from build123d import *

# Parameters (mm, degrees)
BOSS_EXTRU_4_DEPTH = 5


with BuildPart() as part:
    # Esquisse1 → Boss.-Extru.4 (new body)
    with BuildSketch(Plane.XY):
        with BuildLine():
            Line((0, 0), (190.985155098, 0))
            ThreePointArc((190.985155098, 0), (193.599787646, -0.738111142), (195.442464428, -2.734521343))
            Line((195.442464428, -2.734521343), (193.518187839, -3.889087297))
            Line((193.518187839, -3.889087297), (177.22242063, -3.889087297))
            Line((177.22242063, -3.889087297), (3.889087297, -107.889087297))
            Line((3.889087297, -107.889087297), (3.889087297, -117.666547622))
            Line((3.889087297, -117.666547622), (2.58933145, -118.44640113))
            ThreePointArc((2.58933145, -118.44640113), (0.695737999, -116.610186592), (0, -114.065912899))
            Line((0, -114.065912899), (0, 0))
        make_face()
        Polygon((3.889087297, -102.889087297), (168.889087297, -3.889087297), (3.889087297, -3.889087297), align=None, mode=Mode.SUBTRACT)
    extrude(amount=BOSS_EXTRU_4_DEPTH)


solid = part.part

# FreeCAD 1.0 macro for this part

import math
import FreeCAD as App
import Part
import Sketcher

V = App.Vector

doc = App.newDocument("Part")
body = doc.addObject("PartDesign::Body", "Body")

# Sketch on XY plane
sketch1 = doc.addObject("Sketcher::SketchObject", "Sketch")
body.addObject(sketch1)
sketch1.AttachmentSupport = (doc.XY_Plane, [""])
sketch1.MapMode = "FlatFace"
sketch1.addGeometry([
    Part.LineSegment(V(191, 0, 0), V(0, 0, 0)),  # 0
    Part.LineSegment(V(0, 0, 0), V(0, -114.1, 0)),  # 1
    Part.ArcOfCircle(Part.Circle(V(5, -114.1, 0), V(0, 0, 1), 5), math.radians(-180), math.radians(-119)),  # 2
    Part.LineSegment(V(2.6, -118.4, 0), V(3.9, -117.7, 0)),  # 3
    Part.LineSegment(V(3.9, -117.7, 0), V(3.9, -107.9, 0)),  # 4
    Part.LineSegment(V(3.9, -107.9, 0), V(177.2, -3.9, 0)),  # 5
    Part.LineSegment(V(177.2, -3.9, 0), V(193.5, -3.9, 0)),  # 6
    Part.LineSegment(V(193.5, -3.9, 0), V(195.4, -2.7, 0)),  # 7
    Part.ArcOfCircle(Part.Circle(V(191, -5, 0), V(0, 0, 1), 5), math.radians(27), math.radians(90)),  # 8
    Part.LineSegment(V(3.9, -102.9, 0), V(3.9, -3.9, 0)),  # 9
    Part.LineSegment(V(3.9, -3.9, 0), V(168.9, -3.9, 0)),  # 10
    Part.LineSegment(V(168.9, -3.9, 0), V(3.9, -102.9, 0)),  # 11
], False)
sketch1.addConstraint([
    Sketcher.Constraint("Coincident", 0, 2, 1, 1),
    Sketcher.Constraint("Tangent", 1, 2, 2, 1),
    Sketcher.Constraint("Coincident", 2, 2, 3, 1),
    Sketcher.Constraint("Coincident", 3, 2, 4, 1),
    Sketcher.Constraint("Coincident", 4, 2, 5, 1),
    Sketcher.Constraint("Coincident", 5, 2, 6, 1),
    Sketcher.Constraint("Coincident", 6, 2, 7, 1),
    Sketcher.Constraint("Coincident", 7, 2, 8, 1),
    Sketcher.Constraint("Tangent", 8, 2, 0, 1),
    Sketcher.Constraint("Coincident", 9, 2, 10, 1),
    Sketcher.Constraint("Coincident", 10, 2, 11, 1),
    Sketcher.Constraint("Coincident", 11, 2, 9, 1),
    Sketcher.Constraint("Horizontal", 0),
    Sketcher.Constraint("Vertical", 1),
    Sketcher.Constraint("Vertical", 4),
    Sketcher.Constraint("Horizontal", 6),
    Sketcher.Constraint("Vertical", 9),
    Sketcher.Constraint("Horizontal", 10),
    Sketcher.Constraint("Coincident", 0, 2, -1, 1),
    Sketcher.Constraint("Equal", 2, 8),
    Sketcher.Constraint("Parallel", 3, 5),
    Sketcher.Constraint("Parallel", 5, 7),
    Sketcher.Constraint("Parallel", 7, 11),
    Sketcher.Constraint("Horizontal", 6, 2, 9, 2),
    Sketcher.Constraint("Vertical", 4, 2, 9, 2),
    Sketcher.Constraint("Radius", 2, 5.0),
    Sketcher.Constraint("DistanceX", 10, 1, 10, 2, 165.0),
    Sketcher.Constraint("DistanceY", 9, 1, 9, 2, 99.0),
    Sketcher.Constraint("DistanceY", 4, 2, 5, 2, 104.0),
    Sketcher.Constraint("DistanceY", 4, 1, 4, 2, 9.77746),
    Sketcher.Constraint("DistanceY", 2, 2, -1, 1, 118.446401),
    Sketcher.Constraint("DistanceX", 4, 2, 6, 2, 189.629101),
    Sketcher.Constraint("DistanceX", 0, 2, 0, 1, 190.985155),
    Sketcher.Constraint("DistanceY", 1, 2, 1, 1, 114.065913),
    Sketcher.Constraint("DistanceX", -1, 1, 5, 2, 177.222421),
])
pad1 = doc.addObject("PartDesign::Pad", "Pad")
body.addObject(pad1)
pad1.Profile = sketch1
pad1.Length = 5

doc.recompute()
